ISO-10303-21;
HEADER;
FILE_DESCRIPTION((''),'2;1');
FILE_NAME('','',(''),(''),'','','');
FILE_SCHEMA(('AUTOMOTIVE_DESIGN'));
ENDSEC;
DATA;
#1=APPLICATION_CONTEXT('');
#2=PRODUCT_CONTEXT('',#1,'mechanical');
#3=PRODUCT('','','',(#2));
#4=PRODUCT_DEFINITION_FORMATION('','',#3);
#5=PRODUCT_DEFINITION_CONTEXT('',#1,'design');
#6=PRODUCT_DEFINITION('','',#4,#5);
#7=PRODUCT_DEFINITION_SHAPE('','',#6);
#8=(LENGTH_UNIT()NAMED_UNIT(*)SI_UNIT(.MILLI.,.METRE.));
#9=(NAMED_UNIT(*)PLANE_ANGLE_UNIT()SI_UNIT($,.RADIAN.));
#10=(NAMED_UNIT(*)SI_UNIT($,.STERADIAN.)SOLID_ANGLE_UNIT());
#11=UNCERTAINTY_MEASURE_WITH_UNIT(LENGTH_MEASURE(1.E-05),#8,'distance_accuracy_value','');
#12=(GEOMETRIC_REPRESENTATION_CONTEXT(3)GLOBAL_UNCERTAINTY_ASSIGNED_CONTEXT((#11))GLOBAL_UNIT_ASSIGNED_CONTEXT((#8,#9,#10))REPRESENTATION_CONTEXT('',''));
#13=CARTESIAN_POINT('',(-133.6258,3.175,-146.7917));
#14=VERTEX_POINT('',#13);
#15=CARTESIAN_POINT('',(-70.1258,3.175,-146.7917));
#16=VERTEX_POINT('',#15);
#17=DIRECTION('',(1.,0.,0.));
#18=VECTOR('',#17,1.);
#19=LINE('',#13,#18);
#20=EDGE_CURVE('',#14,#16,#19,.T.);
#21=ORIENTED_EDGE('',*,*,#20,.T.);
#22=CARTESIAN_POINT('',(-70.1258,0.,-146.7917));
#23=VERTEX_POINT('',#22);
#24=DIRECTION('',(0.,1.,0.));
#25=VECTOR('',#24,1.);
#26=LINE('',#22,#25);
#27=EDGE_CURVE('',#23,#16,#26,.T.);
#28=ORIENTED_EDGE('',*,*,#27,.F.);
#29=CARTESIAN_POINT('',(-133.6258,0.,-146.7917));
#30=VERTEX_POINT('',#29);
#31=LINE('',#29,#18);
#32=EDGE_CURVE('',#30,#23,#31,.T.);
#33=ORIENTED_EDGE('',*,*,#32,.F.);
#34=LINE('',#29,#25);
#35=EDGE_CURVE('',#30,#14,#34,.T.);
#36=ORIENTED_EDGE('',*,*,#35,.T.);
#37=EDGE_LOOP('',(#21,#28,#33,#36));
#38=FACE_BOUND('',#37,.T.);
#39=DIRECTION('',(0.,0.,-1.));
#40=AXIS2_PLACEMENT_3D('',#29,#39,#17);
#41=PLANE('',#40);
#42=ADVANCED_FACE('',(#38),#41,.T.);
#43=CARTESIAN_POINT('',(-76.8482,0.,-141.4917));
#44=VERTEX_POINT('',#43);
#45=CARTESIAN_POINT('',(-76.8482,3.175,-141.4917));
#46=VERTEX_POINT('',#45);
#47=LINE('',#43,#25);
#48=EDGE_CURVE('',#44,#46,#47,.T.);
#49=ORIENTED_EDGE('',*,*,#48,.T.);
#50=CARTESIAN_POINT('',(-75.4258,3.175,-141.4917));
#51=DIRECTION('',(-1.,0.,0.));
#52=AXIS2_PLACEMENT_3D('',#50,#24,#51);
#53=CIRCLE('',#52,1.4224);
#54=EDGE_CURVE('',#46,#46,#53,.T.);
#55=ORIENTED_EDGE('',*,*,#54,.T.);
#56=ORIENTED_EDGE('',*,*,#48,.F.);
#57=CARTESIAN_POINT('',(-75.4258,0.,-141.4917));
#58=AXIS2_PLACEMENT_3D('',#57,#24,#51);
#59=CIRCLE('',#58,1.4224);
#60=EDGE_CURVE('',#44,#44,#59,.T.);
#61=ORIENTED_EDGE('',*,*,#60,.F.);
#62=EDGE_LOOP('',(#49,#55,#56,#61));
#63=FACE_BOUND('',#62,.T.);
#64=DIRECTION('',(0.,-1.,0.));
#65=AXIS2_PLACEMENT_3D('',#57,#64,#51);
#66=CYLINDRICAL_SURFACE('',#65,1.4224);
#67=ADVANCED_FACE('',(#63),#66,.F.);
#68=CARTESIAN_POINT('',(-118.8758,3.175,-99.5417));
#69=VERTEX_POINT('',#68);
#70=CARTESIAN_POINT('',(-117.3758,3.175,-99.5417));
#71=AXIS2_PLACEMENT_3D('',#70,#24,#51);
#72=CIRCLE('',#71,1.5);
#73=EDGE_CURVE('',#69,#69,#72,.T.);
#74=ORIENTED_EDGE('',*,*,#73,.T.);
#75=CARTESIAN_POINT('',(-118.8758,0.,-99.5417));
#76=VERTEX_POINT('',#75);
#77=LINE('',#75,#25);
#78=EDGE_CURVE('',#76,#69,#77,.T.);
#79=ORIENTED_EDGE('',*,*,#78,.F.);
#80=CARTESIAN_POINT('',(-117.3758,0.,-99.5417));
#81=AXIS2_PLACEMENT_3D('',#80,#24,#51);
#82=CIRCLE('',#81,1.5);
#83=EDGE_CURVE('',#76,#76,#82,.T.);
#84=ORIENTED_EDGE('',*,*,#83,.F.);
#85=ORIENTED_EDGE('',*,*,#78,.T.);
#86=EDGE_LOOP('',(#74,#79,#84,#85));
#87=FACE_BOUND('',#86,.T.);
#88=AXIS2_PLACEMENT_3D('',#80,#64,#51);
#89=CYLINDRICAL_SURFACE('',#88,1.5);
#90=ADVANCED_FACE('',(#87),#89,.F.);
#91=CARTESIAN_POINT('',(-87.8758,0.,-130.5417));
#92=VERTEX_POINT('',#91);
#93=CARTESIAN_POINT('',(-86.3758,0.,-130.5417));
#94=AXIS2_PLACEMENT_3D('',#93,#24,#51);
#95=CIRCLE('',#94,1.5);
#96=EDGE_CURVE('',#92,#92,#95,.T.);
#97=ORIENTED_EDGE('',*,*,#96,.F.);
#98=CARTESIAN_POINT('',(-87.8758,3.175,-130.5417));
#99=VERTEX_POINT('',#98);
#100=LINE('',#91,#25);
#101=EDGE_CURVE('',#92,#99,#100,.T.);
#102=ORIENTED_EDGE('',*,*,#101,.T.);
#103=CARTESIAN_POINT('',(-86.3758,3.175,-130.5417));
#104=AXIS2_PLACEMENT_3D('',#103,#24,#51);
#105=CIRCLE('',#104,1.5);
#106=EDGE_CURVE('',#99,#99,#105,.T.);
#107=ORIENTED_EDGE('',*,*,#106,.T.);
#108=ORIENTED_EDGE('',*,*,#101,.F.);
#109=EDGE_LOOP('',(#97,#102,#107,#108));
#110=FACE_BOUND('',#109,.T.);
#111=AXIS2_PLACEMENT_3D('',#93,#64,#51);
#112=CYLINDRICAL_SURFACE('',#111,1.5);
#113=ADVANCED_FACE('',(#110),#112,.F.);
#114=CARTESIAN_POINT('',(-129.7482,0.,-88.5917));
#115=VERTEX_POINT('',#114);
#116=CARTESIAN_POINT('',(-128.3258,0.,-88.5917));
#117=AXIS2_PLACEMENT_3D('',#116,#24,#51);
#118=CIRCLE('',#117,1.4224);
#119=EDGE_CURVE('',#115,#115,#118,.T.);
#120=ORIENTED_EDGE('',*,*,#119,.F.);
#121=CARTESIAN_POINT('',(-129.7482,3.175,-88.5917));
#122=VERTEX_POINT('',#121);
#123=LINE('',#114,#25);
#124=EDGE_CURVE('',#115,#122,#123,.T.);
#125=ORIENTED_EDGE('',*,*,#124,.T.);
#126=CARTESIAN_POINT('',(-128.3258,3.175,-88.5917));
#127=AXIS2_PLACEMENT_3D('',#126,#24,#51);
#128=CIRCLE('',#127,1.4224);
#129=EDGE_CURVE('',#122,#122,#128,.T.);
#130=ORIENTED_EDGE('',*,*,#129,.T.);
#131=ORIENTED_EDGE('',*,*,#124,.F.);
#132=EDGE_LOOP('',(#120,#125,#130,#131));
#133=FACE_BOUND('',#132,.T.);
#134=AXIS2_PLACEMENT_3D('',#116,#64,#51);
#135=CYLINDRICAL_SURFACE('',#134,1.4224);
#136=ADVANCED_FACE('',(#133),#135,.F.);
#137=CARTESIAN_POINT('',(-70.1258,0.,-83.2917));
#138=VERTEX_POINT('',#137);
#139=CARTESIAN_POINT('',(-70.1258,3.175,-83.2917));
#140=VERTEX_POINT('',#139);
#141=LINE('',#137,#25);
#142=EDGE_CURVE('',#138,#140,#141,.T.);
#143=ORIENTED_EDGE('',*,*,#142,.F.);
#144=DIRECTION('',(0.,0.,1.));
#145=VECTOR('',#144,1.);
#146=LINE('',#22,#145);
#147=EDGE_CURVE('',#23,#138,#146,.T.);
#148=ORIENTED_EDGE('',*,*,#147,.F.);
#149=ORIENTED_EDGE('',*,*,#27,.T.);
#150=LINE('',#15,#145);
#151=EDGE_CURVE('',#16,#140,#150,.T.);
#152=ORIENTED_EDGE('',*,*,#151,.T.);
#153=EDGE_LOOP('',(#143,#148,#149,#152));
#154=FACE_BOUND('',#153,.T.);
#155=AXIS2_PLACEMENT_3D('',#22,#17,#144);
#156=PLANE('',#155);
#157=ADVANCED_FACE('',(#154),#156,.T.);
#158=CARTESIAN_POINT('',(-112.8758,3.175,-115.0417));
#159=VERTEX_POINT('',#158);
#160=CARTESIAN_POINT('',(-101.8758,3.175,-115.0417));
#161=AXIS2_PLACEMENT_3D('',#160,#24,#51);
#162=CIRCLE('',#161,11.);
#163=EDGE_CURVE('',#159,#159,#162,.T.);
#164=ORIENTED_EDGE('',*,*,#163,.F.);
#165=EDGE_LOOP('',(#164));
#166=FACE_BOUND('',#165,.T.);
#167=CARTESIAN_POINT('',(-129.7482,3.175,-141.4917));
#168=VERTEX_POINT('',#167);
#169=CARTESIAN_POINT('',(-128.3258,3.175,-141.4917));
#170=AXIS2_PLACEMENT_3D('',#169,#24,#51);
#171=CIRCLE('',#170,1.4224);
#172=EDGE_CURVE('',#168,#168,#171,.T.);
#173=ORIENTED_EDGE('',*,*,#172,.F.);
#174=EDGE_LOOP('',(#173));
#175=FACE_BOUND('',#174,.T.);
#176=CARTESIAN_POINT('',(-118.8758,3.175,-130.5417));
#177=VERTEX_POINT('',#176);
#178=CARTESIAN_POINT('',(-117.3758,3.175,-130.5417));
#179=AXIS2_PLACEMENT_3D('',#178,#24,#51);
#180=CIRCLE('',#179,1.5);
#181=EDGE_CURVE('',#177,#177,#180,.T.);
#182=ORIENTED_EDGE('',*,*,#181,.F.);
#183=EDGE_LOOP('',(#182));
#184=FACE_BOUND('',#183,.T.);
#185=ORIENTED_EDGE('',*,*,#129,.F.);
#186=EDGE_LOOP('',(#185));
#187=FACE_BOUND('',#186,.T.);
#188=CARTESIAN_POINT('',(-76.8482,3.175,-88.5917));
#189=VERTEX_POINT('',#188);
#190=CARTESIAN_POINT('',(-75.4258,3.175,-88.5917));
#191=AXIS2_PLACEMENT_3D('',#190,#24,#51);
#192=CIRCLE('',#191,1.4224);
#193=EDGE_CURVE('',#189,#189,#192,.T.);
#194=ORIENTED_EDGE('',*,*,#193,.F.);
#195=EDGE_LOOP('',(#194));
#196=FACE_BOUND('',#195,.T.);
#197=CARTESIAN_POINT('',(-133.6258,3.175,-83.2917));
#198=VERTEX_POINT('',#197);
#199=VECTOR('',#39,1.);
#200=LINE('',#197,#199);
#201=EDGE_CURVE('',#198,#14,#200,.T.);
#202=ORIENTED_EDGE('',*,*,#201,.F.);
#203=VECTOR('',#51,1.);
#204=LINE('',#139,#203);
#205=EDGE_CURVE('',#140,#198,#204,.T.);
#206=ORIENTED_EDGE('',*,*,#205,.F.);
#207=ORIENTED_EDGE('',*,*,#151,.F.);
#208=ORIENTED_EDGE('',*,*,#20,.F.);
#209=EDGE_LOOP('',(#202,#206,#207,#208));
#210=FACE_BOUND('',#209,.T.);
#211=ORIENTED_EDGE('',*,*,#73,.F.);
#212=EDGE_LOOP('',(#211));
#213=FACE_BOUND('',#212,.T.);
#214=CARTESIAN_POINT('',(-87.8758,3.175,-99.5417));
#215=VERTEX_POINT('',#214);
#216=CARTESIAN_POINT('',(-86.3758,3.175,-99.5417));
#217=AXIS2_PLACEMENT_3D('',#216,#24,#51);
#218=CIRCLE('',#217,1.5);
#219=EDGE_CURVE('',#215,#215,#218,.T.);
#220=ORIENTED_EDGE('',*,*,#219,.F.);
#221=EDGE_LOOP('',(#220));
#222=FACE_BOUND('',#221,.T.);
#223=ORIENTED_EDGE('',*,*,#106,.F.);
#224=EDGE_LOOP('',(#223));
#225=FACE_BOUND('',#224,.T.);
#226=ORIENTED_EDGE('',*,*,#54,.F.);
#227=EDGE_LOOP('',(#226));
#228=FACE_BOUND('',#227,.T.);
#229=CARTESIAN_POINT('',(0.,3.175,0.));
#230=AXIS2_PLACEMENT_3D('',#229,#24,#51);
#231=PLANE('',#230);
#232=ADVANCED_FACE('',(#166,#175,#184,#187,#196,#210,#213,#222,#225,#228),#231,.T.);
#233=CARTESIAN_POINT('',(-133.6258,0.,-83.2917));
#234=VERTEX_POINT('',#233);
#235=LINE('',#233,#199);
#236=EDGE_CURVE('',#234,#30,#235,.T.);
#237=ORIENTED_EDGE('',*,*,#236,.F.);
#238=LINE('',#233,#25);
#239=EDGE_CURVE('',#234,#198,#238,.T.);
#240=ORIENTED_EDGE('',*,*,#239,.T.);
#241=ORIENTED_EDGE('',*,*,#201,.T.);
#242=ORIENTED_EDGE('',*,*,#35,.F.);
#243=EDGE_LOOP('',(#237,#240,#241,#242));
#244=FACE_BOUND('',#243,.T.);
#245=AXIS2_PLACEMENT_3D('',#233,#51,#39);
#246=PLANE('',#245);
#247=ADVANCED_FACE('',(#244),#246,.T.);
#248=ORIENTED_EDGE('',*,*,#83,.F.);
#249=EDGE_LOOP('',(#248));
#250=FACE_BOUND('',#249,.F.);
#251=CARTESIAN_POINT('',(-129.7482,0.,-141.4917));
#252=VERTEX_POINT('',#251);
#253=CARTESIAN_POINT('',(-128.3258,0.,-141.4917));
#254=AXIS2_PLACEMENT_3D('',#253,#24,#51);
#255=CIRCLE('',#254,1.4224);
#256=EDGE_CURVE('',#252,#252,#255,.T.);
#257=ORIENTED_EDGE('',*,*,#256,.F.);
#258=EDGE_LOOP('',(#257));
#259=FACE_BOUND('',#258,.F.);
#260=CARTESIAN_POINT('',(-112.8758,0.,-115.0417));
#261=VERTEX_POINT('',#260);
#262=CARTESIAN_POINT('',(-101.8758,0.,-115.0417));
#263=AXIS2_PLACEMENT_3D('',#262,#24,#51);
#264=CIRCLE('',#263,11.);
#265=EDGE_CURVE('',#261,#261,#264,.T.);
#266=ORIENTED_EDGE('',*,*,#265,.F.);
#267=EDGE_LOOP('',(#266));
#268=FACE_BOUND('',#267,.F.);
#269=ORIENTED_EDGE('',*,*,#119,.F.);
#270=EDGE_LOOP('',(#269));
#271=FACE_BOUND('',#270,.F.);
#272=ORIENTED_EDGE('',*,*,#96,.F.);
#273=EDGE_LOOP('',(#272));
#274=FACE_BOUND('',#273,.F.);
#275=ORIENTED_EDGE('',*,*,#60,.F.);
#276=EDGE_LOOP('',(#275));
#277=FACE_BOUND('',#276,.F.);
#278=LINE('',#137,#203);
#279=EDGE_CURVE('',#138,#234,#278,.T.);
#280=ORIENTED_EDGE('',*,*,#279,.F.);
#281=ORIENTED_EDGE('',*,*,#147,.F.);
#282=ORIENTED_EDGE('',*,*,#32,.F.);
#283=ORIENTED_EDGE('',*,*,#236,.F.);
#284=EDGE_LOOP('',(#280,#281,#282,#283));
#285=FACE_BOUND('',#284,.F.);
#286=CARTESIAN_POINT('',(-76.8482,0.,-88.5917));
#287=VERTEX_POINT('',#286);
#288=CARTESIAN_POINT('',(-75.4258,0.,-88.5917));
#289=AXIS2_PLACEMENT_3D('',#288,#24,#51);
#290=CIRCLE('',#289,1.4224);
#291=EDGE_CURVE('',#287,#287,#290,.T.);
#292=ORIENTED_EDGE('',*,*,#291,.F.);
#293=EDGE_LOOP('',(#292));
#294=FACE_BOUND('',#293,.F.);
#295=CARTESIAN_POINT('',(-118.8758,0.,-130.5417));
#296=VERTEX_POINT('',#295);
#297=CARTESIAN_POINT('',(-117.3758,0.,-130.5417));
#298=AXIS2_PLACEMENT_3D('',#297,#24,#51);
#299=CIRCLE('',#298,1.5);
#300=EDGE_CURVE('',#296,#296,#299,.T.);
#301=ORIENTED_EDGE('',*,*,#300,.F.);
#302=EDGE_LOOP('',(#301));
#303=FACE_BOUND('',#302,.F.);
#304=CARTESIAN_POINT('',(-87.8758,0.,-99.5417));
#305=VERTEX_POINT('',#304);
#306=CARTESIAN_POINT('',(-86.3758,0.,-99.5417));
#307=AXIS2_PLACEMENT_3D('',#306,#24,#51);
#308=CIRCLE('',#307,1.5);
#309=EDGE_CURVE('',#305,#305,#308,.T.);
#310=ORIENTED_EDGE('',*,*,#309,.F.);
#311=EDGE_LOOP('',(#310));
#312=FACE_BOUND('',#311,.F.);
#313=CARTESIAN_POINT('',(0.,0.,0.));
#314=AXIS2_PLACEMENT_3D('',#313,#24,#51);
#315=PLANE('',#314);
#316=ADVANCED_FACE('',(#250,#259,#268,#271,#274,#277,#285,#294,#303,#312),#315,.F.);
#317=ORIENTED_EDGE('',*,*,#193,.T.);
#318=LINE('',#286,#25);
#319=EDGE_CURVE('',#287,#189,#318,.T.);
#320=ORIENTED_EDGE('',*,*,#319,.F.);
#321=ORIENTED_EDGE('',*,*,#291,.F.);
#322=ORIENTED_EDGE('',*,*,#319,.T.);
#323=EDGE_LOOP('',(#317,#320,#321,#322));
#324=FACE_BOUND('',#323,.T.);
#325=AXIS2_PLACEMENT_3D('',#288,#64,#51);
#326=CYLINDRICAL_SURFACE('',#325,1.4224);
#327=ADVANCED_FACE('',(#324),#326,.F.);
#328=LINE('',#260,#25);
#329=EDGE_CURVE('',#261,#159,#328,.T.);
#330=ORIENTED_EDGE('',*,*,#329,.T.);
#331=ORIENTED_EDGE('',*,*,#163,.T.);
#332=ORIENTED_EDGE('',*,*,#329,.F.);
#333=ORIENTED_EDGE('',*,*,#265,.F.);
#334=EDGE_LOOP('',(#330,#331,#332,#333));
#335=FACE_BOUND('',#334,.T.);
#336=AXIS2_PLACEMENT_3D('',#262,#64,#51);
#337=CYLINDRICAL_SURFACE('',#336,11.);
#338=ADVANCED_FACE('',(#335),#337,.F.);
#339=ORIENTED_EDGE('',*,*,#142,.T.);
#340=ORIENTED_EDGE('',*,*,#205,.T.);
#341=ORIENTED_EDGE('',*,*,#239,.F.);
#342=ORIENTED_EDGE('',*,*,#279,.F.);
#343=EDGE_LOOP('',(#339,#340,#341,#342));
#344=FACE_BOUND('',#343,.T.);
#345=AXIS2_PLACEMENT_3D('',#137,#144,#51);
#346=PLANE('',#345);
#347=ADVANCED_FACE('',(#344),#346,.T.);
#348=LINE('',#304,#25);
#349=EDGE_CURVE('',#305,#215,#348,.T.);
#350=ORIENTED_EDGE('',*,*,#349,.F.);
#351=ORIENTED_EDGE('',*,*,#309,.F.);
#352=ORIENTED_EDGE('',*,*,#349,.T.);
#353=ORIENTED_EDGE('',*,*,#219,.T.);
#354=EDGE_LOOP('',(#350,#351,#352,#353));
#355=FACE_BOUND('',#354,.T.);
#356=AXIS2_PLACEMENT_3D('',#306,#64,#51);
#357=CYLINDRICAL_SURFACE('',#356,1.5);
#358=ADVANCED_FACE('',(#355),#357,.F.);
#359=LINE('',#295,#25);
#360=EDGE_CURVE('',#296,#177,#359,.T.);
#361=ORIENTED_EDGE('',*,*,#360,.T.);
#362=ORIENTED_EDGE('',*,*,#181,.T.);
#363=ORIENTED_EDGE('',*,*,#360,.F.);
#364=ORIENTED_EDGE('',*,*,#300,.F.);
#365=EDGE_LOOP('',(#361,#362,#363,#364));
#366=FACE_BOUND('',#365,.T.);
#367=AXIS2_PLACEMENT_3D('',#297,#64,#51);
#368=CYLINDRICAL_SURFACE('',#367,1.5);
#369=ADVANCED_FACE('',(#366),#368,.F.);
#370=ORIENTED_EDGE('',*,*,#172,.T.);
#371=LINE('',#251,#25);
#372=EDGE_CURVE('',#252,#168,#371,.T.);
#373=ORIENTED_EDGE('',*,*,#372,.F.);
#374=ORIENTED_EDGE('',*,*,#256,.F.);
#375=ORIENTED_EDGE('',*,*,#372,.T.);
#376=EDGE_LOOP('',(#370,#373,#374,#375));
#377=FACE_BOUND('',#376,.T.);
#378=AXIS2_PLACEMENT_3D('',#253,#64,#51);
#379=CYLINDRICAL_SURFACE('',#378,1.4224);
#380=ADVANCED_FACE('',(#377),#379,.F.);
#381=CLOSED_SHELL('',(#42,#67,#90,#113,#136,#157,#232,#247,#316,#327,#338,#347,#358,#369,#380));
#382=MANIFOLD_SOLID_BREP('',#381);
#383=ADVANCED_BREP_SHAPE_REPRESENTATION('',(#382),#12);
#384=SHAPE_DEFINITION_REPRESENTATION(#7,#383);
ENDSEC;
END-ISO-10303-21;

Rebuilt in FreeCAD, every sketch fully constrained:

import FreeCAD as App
import Part
import Sketcher

V = App.Vector
Q = App.Units.Quantity


def add_polygon(sketch, points):
    """Adds a closed chain of lines whose ends are joined by coincident constraints."""
    first, n = sketch.GeometryCount, len(points)
    for a, b in zip(points, points[1:] + points[:1]):
        sketch.addGeometry(Part.LineSegment(App.Vector(*a, 0), App.Vector(*b, 0)), False)
    for i in range(n):
        sketch.addConstraint(Sketcher.Constraint("Coincident", first + i, 2, first + (i + 1) % n, 1))

doc = App.newDocument("Part")
params = doc.addObject("Spreadsheet::Sheet", "Params")
for row, (alias, value) in enumerate([
    ("sketch1_diameter", "0.112 in"),
    ("sketch1_width", "2.5 in"),
    ("pad1_length", "0.125 in"),
], start=1):
    params.set(f"A{row}", alias)
    params.set(f"B{row}", "=" + value)
    params.setAlias(f"B{row}", alias)

body = doc.addObject("PartDesign::Body", "Body")

# Sketch on XZ plane
sketch1 = doc.addObject("Sketcher::SketchObject", "Sketch")
body.addObject(sketch1)
sketch1.AttachmentSupport = (doc.XZ_Plane, [""])
sketch1.MapMode = "FlatFace"
add_polygon(sketch1, [(-70.1, -146.8), (-133.6, -146.8), (-133.6, -83.3), (-70.1, -83.3)])  # lines 0-3
sketch1.addGeometry(Part.Circle(V(-75.4, -141.5, 0), V(0, 0, 1), 1.4), False)  # 4
sketch1.addGeometry(Part.Circle(V(-86.4, -130.5, 0), V(0, 0, 1), 1.5), False)  # 5
sketch1.addGeometry(Part.Circle(V(-128.3, -141.5, 0), V(0, 0, 1), 1.4), False)  # 6
sketch1.addGeometry(Part.Circle(V(-117.4, -130.5, 0), V(0, 0, 1), 1.5), False)  # 7
sketch1.addGeometry(Part.Circle(V(-101.9, -115, 0), V(0, 0, 1), 11), False)  # 8
sketch1.addGeometry(Part.Circle(V(-86.4, -99.5, 0), V(0, 0, 1), 1.5), False)  # 9
sketch1.addGeometry(Part.Circle(V(-75.4, -88.6, 0), V(0, 0, 1), 1.4), False)  # 10
sketch1.addGeometry(Part.Circle(V(-117.4, -99.5, 0), V(0, 0, 1), 1.5), False)  # 11
sketch1.addGeometry(Part.Circle(V(-128.3, -88.6, 0), V(0, 0, 1), 1.4), False)  # 12
sketch1.addConstraint(Sketcher.Constraint("Horizontal", 0))
sketch1.addConstraint(Sketcher.Constraint("Vertical", 1))
sketch1.addConstraint(Sketcher.Constraint("Horizontal", 2))
sketch1.addConstraint(Sketcher.Constraint("Vertical", 3))
sketch1.addConstraint(Sketcher.Constraint("Equal", 4, 6))
sketch1.addConstraint(Sketcher.Constraint("Equal", 5, 7))
sketch1.addConstraint(Sketcher.Constraint("Equal", 7, 9))
sketch1.addConstraint(Sketcher.Constraint("Equal", 6, 10))
sketch1.addConstraint(Sketcher.Constraint("Equal", 9, 11))
sketch1.addConstraint(Sketcher.Constraint("Equal", 10, 12))
sketch1.addConstraint(Sketcher.Constraint("Horizontal", 4, 3, 6, 3))
sketch1.addConstraint(Sketcher.Constraint("Horizontal", 5, 3, 7, 3))
sketch1.addConstraint(Sketcher.Constraint("Horizontal", 9, 3, 11, 3))
sketch1.addConstraint(Sketcher.Constraint("Horizontal", 10, 3, 12, 3))
sketch1.addConstraint(Sketcher.Constraint("Vertical", 5, 3, 9, 3))
sketch1.addConstraint(Sketcher.Constraint("Vertical", 4, 3, 10, 3))
sketch1.addConstraint(Sketcher.Constraint("Vertical", 7, 3, 11, 3))
sketch1.addConstraint(Sketcher.Constraint("Vertical", 6, 3, 12, 3))
sketch1.addConstraint(Sketcher.Constraint("Equal", 2, 1))
sketch1.addConstraint(Sketcher.Constraint("Diameter", 4, Q("0.112 in")))
sketch1.addConstraint(Sketcher.Constraint("DistanceX", 0, 2, 0, 1, Q("2.5 in")))
sketch1.addConstraint(Sketcher.Constraint("Diameter", 5, Q("0.1181 in")))
sketch1.addConstraint(Sketcher.Constraint("Diameter", 8, 22.0))
sketch1.addConstraint(Sketcher.Constraint("DistanceX", 0, 2, 8, 3, Q("1.25 in")))
sketch1.addConstraint(Sketcher.Constraint("DistanceY", 0, 2, 8, 3, Q("1.25 in")))
sketch1.addConstraint(Sketcher.Constraint("DistanceX", 6, 3, -1, 1, Q("5.0522 in")))
sketch1.addConstraint(Sketcher.Constraint("DistanceX", 7, 3, -1, 1, Q("4.6211 in")))
sketch1.addConstraint(Sketcher.Constraint("DistanceY", 8, 3, -1, 1, Q("4.5292 in")))
sketch1.addConstraint(Sketcher.Constraint("DistanceX", 5, 3, 4, 3, Q("0.4311 in")))
sketch1.addConstraint(Sketcher.Constraint("DistanceY", 4, 3, 5, 3, Q("0.4311 in")))
sketch1.addConstraint(Sketcher.Constraint("DistanceY", 9, 3, 10, 3, Q("0.4311 in")))
sketch1.addConstraint(Sketcher.Constraint("DistanceX", 4, 3, -1, 1, 75.4258))
sketch1.addConstraint(Sketcher.Constraint("DistanceY", 4, 3, -1, 1, 141.4917))
sketch1.addConstraint(Sketcher.Constraint("DistanceX", 8, 3, -1, 1, 101.8758))
sketch1.addConstraint(Sketcher.Constraint("DistanceY", 9, 3, -1, 1, 99.5417))
sketch1.setExpression("Constraints[23]", "Params.sketch1_diameter")
sketch1.setExpression("Constraints[24]", "Params.sketch1_width")
pad1 = doc.addObject("PartDesign::Pad", "Pad")
body.addObject(pad1)
pad1.Profile = sketch1
pad1.setExpression("Length", "Params.pad1_length")
pad1.Reversed = True

doc.recompute()
